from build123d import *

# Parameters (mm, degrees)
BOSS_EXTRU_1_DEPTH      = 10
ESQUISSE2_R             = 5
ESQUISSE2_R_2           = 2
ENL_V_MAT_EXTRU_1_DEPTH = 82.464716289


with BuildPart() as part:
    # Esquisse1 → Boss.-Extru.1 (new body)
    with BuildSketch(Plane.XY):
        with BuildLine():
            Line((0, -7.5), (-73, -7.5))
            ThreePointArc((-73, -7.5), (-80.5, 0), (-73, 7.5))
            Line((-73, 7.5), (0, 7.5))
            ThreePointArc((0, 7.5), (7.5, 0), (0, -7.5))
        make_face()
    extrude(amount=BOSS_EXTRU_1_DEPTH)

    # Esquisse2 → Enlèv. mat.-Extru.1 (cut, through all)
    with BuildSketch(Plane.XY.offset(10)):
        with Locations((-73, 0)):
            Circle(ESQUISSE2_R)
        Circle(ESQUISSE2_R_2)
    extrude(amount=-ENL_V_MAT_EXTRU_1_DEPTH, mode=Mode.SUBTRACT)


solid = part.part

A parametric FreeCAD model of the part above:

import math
import FreeCAD as App
import Part
import Sketcher

V = App.Vector

doc = App.newDocument("Part")
body = doc.addObject("PartDesign::Body", "Body")

# Sketch on XY plane
sketch1 = body.newObject("Sketcher::SketchObject", "Sketch")
sketch1.AttachmentSupport = (doc.getObject("XY_Plane"), [""])
sketch1.MapMode = "FlatFace"
sketch1.addGeometry(Part.LineSegment(V(-73, -8, 0), V(0, -8, 0)), False)
sketch1.addGeometry(Part.ArcOfCircle(Part.Circle(V(0, 0, 0), V(0, 0, 1), 8), math.radians(-90), math.radians(90)), False)
sketch1.addGeometry(Part.LineSegment(V(0, 8, 0), V(-73, 8, 0)), False)
sketch1.addGeometry(Part.ArcOfCircle(Part.Circle(V(-73, 0, 0), V(0, 0, 1), 8), math.radians(90), math.radians(270)), False)
sketch1.addConstraint(Sketcher.Constraint("Tangent", 0, 2, 1, 1))
sketch1.addConstraint(Sketcher.Constraint("Tangent", 1, 2, 2, 1))
sketch1.addConstraint(Sketcher.Constraint("Tangent", 2, 2, 3, 1))
sketch1.addConstraint(Sketcher.Constraint("Tangent", 3, 2, 0, 1))
sketch1.addConstraint(Sketcher.Constraint("Horizontal", 0))
sketch1.addConstraint(Sketcher.Constraint("Horizontal", 2))
sketch1.addConstraint(Sketcher.Constraint("Coincident", 1, 3, -1, 1))
sketch1.addConstraint(Sketcher.Constraint("Radius", 1, 7.5))
sketch1.addConstraint(Sketcher.Constraint("DistanceX", 0, 1, 0, 2, 73.0))
pad1 = body.newObject("PartDesign::Pad", "Pad")
pad1.Profile = sketch1
pad1.Length = 10

# Sketch on XY plane
sketch2 = body.newObject("Sketcher::SketchObject", "Sketch001")
sketch2.AttachmentSupport = (doc.getObject("XY_Plane"), [""])
sketch2.MapMode = "FlatFace"
sketch2.AttachmentOffset = App.Placement(V(0, 0, 10), App.Rotation())
sketch2.addGeometry(Part.Circle(V(-73, 0, 0), V(0, 0, 1), 5), False)
sketch2.addGeometry(Part.Circle(V(0, 0, 0), V(0, 0, 1), 2), False)
sketch2.addConstraint(Sketcher.Constraint("Coincident", 1, 3, -1, 1))
sketch2.addConstraint(Sketcher.Constraint("PointOnObject", 0, 3, -1))
sketch2.addConstraint(Sketcher.Constraint("Diameter", 0, 10.0))
sketch2.addConstraint(Sketcher.Constraint("Diameter", 1, 4.0))
sketch2.addConstraint(Sketcher.Constraint("DistanceX", 0, 3, -1, 1, 73.0))
pocket1 = body.newObject("PartDesign::Pocket", "Pocket")
pocket1.Profile = sketch2
pocket1.Type = "ThroughAll"

doc.recompute()
